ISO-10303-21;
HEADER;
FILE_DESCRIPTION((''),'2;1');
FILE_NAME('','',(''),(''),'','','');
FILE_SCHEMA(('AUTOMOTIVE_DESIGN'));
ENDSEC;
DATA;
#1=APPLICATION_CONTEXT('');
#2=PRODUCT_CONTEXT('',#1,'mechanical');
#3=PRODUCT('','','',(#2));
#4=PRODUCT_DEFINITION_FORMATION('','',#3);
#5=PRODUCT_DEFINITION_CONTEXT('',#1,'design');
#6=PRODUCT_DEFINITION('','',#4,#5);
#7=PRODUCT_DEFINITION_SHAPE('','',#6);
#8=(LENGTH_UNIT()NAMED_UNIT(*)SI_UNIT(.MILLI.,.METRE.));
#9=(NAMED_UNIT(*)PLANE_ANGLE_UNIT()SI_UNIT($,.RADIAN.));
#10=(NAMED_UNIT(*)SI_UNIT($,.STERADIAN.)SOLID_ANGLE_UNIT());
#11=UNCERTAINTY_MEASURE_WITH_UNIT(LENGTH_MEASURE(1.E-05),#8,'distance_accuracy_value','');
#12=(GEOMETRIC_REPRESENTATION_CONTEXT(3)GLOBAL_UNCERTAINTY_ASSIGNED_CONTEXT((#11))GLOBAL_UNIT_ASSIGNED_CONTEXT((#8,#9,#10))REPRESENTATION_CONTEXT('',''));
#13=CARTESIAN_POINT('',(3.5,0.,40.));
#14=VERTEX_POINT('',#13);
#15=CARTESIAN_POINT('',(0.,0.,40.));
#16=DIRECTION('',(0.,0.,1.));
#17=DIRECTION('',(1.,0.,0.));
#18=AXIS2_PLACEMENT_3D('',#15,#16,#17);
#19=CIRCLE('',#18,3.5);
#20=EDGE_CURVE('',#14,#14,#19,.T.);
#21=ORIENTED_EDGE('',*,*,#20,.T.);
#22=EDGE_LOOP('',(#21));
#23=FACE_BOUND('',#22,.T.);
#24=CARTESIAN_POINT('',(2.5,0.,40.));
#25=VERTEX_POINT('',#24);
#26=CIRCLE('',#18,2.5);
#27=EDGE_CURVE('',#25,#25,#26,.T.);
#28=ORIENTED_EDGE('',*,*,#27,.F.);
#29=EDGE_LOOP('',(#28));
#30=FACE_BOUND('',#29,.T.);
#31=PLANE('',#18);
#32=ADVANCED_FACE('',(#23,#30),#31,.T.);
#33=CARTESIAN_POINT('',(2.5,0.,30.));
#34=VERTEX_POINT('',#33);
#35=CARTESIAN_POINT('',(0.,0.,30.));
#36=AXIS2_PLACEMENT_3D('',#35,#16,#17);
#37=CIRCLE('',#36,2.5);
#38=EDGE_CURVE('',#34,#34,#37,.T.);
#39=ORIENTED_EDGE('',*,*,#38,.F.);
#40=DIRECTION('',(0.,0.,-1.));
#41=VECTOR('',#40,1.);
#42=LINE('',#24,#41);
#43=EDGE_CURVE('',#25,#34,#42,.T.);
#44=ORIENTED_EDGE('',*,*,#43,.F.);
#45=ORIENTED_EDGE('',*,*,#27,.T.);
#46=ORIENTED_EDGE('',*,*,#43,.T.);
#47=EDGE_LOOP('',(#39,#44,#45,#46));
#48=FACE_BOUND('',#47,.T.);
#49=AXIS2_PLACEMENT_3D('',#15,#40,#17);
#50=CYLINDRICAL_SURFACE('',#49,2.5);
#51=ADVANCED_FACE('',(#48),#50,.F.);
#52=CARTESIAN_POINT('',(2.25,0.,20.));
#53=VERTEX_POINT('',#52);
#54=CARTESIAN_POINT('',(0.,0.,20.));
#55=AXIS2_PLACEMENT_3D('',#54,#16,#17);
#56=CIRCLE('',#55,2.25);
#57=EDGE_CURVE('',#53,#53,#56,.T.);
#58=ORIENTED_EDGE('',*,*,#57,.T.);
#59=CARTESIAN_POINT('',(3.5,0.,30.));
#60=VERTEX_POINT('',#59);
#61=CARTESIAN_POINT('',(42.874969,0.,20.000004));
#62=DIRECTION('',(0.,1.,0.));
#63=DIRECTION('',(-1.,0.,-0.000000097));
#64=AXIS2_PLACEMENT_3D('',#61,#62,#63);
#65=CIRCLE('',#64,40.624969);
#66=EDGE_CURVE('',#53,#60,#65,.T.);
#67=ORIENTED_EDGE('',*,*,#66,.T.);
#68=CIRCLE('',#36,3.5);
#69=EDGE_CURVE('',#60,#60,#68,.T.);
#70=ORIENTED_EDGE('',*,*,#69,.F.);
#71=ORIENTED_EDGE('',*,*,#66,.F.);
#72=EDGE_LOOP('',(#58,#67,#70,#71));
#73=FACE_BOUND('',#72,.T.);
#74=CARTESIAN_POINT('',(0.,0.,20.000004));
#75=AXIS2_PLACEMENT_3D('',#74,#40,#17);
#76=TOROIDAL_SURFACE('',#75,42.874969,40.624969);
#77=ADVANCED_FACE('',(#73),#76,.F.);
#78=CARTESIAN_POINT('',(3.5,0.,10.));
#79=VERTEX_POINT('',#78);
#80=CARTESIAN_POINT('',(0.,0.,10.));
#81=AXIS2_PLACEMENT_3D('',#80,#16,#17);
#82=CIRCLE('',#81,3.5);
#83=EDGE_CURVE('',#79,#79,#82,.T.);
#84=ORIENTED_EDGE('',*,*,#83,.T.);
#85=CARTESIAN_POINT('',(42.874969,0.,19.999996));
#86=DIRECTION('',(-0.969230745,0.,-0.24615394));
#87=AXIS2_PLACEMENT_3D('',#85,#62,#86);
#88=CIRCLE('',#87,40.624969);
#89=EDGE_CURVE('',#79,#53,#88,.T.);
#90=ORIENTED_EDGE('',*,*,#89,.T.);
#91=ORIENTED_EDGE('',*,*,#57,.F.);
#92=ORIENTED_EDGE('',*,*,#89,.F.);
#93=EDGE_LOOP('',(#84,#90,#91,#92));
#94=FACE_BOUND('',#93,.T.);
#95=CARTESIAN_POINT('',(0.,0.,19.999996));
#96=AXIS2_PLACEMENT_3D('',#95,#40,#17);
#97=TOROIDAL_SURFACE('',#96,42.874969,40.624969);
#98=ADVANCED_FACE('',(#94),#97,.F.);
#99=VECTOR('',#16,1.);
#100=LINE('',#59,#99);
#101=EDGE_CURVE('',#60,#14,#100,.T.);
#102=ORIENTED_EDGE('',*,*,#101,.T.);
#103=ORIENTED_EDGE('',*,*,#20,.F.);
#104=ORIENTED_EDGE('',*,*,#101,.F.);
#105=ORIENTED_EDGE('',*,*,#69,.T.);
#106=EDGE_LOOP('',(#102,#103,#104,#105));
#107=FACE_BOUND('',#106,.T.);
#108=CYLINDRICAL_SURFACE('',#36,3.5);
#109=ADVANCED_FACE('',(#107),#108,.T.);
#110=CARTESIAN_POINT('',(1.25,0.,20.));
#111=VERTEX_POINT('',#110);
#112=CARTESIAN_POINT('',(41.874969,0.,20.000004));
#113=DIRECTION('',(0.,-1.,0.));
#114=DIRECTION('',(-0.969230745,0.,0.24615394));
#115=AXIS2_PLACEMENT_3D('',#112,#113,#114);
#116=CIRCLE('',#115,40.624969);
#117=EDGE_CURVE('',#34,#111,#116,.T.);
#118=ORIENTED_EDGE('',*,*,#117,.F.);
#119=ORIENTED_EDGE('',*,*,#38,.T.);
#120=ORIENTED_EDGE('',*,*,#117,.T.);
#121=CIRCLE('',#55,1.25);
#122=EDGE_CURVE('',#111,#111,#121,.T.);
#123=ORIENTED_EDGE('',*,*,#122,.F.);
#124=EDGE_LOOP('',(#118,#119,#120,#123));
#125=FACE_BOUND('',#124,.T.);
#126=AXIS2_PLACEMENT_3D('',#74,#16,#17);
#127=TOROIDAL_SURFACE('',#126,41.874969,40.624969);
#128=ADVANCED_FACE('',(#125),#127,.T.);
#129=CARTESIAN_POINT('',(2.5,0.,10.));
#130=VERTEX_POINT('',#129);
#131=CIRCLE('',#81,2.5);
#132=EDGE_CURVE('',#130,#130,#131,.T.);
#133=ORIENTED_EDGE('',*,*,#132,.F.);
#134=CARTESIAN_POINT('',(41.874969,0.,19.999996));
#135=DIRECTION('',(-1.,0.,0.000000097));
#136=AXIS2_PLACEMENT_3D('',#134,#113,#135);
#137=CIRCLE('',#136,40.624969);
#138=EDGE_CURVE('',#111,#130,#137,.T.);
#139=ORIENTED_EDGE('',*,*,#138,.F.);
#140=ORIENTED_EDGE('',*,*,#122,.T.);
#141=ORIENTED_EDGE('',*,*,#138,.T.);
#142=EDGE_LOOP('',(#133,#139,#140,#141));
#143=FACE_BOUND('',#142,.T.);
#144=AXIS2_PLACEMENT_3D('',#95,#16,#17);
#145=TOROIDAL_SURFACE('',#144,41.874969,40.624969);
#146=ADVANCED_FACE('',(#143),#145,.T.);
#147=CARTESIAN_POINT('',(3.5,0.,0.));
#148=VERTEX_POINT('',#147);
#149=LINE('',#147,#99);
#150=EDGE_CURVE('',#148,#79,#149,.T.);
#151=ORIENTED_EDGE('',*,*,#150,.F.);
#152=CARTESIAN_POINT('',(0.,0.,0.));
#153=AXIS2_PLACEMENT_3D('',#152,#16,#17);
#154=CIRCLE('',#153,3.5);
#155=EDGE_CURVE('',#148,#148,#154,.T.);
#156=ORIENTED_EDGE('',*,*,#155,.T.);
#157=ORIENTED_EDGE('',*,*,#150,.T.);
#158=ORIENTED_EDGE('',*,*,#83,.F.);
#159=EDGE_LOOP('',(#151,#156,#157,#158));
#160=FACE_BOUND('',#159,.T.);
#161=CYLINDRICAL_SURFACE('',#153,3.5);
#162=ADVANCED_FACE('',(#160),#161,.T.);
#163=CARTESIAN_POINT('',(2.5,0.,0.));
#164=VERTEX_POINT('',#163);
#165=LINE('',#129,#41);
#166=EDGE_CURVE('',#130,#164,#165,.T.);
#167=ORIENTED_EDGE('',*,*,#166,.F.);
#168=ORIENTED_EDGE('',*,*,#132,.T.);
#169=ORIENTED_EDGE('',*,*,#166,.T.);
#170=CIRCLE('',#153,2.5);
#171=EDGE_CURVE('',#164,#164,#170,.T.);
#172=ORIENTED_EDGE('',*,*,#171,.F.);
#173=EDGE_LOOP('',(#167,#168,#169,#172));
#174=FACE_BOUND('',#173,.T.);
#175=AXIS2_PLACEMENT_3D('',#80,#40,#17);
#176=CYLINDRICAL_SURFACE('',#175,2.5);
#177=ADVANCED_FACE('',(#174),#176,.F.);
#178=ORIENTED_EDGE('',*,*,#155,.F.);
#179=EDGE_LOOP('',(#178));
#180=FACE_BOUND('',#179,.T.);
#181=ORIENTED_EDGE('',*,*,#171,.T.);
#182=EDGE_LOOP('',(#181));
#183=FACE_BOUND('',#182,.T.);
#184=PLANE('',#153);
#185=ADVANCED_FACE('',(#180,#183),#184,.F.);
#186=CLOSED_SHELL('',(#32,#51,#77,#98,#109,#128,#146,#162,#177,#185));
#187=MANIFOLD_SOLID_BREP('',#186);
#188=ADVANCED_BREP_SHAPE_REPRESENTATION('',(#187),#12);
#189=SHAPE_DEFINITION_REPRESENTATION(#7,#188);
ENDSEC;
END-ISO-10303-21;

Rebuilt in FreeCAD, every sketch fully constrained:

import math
import FreeCAD as App
import Part
import Sketcher
Q = App.Units.Quantity

doc = App.newDocument("Part")
body = doc.addObject("PartDesign::Body", "Body")

# Sketch on XZ plane
sketch1 = body.newObject("Sketcher::SketchObject", "Sketch")
sketch1.AttachmentSupport = (doc.getObject("XZ_Plane"), [""])
sketch1.MapMode = "FlatFace"
sketch1.addGeometry(Part.LineSegment(App.Vector(2.5, 10, 0), App.Vector(2.5, 0, 0)), False)
sketch1.addGeometry(Part.LineSegment(App.Vector(2.5, 0, 0), App.Vector(3.5, 0, 0)), False)
sketch1.addGeometry(Part.LineSegment(App.Vector(3.5, 0, 0), App.Vector(3.5, 10, 0)), False)
sketch1.addGeometry(Part.ArcOfCircle(Part.Circle(App.Vector(42.874969, 19.999996, 0), App.Vector(0, 0, 1), 40.624969), math.radians(179.999994), math.radians(194.250038)), False)
sketch1.addGeometry(Part.ArcOfCircle(Part.Circle(App.Vector(42.874969, 20.000004, 0), App.Vector(0, 0, 1), 40.624969), math.radians(165.749962), math.radians(180.000006)), False)
sketch1.addGeometry(Part.LineSegment(App.Vector(3.5, 30, 0), App.Vector(3.5, 40, 0)), False)
sketch1.addGeometry(Part.LineSegment(App.Vector(3.5, 40, 0), App.Vector(2.5, 40, 0)), False)
sketch1.addGeometry(Part.LineSegment(App.Vector(2.5, 40, 0), App.Vector(2.5, 30, 0)), False)
sketch1.addGeometry(Part.ArcOfCircle(Part.Circle(App.Vector(41.874969, 20.000004, 0), App.Vector(0, 0, 1), 40.624969), math.radians(165.749962), math.radians(180.000006)), False)
sketch1.addGeometry(Part.ArcOfCircle(Part.Circle(App.Vector(41.874969, 19.999996, 0), App.Vector(0, 0, 1), 40.624969), math.radians(179.999994), math.radians(194.250038)), False)
sketch1.addConstraint(Sketcher.Constraint("Coincident", 0, 2, 1, 1))
sketch1.addConstraint(Sketcher.Constraint("Coincident", 1, 2, 2, 1))
sketch1.addConstraint(Sketcher.Constraint("Coincident", 2, 2, 3, 2))
sketch1.addConstraint(Sketcher.Constraint("Tangent", 3, 1, 4, 2))
sketch1.addConstraint(Sketcher.Constraint("Coincident", 4, 1, 5, 1))
sketch1.addConstraint(Sketcher.Constraint("Coincident", 5, 2, 6, 1))
sketch1.addConstraint(Sketcher.Constraint("Coincident", 6, 2, 7, 1))
sketch1.addConstraint(Sketcher.Constraint("Coincident", 7, 2, 8, 1))
sketch1.addConstraint(Sketcher.Constraint("Tangent", 8, 2, 9, 1))
sketch1.addConstraint(Sketcher.Constraint("Coincident", 9, 2, 0, 1))
sketch1.addConstraint(Sketcher.Constraint("Vertical", 0))
sketch1.addConstraint(Sketcher.Constraint("Horizontal", 1))
sketch1.addConstraint(Sketcher.Constraint("Vertical", 2))
sketch1.addConstraint(Sketcher.Constraint("Vertical", 5))
sketch1.addConstraint(Sketcher.Constraint("Horizontal", 6))
sketch1.addConstraint(Sketcher.Constraint("Vertical", 7))
sketch1.addConstraint(Sketcher.Constraint("Equal", 3, 4))
sketch1.addConstraint(Sketcher.Constraint("Equal", 4, 8))
sketch1.addConstraint(Sketcher.Constraint("Equal", 8, 9))
sketch1.addConstraint(Sketcher.Constraint("PointOnObject", 0, 2, -1))
sketch1.addConstraint(Sketcher.Constraint("Horizontal", 4, 3, 8, 3))
sketch1.addConstraint(Sketcher.Constraint("Horizontal", 4, 1, 7, 2))
sketch1.addConstraint(Sketcher.Constraint("Horizontal", 3, 1, 8, 2))
sketch1.addConstraint(Sketcher.Constraint("Horizontal", 2, 2, 9, 2))
sketch1.addConstraint(Sketcher.Constraint("Vertical", 2, 2, 4, 1))
sketch1.addConstraint(Sketcher.Constraint("Equal", 2, 5))
sketch1.addConstraint(Sketcher.Constraint("DistanceX", 1, 1, 1, 2, Q("1 mm")))
sketch1.addConstraint(Sketcher.Constraint("DistanceY", 0, 2, 0, 1, Q("10 mm")))
sketch1.addConstraint(Sketcher.Constraint("DistanceY", -1, 1, 3, 1, Q("20 mm")))
sketch1.addConstraint(Sketcher.Constraint("DistanceY", -1, 1, 4, 1, Q("30 mm")))
sketch1.addConstraint(Sketcher.Constraint("DistanceX", -1, 1, 0, 2, Q("2.5 mm")))
sketch1.addConstraint(Sketcher.Constraint("DistanceX", -1, 1, 3, 1, Q("2.25 mm")))
revolution = body.newObject("PartDesign::Revolution", "Revolution")
revolution.Profile = sketch1
revolution.ReferenceAxis = (sketch1, ["V_Axis"])
revolution.Angle = 360

doc.recompute()
